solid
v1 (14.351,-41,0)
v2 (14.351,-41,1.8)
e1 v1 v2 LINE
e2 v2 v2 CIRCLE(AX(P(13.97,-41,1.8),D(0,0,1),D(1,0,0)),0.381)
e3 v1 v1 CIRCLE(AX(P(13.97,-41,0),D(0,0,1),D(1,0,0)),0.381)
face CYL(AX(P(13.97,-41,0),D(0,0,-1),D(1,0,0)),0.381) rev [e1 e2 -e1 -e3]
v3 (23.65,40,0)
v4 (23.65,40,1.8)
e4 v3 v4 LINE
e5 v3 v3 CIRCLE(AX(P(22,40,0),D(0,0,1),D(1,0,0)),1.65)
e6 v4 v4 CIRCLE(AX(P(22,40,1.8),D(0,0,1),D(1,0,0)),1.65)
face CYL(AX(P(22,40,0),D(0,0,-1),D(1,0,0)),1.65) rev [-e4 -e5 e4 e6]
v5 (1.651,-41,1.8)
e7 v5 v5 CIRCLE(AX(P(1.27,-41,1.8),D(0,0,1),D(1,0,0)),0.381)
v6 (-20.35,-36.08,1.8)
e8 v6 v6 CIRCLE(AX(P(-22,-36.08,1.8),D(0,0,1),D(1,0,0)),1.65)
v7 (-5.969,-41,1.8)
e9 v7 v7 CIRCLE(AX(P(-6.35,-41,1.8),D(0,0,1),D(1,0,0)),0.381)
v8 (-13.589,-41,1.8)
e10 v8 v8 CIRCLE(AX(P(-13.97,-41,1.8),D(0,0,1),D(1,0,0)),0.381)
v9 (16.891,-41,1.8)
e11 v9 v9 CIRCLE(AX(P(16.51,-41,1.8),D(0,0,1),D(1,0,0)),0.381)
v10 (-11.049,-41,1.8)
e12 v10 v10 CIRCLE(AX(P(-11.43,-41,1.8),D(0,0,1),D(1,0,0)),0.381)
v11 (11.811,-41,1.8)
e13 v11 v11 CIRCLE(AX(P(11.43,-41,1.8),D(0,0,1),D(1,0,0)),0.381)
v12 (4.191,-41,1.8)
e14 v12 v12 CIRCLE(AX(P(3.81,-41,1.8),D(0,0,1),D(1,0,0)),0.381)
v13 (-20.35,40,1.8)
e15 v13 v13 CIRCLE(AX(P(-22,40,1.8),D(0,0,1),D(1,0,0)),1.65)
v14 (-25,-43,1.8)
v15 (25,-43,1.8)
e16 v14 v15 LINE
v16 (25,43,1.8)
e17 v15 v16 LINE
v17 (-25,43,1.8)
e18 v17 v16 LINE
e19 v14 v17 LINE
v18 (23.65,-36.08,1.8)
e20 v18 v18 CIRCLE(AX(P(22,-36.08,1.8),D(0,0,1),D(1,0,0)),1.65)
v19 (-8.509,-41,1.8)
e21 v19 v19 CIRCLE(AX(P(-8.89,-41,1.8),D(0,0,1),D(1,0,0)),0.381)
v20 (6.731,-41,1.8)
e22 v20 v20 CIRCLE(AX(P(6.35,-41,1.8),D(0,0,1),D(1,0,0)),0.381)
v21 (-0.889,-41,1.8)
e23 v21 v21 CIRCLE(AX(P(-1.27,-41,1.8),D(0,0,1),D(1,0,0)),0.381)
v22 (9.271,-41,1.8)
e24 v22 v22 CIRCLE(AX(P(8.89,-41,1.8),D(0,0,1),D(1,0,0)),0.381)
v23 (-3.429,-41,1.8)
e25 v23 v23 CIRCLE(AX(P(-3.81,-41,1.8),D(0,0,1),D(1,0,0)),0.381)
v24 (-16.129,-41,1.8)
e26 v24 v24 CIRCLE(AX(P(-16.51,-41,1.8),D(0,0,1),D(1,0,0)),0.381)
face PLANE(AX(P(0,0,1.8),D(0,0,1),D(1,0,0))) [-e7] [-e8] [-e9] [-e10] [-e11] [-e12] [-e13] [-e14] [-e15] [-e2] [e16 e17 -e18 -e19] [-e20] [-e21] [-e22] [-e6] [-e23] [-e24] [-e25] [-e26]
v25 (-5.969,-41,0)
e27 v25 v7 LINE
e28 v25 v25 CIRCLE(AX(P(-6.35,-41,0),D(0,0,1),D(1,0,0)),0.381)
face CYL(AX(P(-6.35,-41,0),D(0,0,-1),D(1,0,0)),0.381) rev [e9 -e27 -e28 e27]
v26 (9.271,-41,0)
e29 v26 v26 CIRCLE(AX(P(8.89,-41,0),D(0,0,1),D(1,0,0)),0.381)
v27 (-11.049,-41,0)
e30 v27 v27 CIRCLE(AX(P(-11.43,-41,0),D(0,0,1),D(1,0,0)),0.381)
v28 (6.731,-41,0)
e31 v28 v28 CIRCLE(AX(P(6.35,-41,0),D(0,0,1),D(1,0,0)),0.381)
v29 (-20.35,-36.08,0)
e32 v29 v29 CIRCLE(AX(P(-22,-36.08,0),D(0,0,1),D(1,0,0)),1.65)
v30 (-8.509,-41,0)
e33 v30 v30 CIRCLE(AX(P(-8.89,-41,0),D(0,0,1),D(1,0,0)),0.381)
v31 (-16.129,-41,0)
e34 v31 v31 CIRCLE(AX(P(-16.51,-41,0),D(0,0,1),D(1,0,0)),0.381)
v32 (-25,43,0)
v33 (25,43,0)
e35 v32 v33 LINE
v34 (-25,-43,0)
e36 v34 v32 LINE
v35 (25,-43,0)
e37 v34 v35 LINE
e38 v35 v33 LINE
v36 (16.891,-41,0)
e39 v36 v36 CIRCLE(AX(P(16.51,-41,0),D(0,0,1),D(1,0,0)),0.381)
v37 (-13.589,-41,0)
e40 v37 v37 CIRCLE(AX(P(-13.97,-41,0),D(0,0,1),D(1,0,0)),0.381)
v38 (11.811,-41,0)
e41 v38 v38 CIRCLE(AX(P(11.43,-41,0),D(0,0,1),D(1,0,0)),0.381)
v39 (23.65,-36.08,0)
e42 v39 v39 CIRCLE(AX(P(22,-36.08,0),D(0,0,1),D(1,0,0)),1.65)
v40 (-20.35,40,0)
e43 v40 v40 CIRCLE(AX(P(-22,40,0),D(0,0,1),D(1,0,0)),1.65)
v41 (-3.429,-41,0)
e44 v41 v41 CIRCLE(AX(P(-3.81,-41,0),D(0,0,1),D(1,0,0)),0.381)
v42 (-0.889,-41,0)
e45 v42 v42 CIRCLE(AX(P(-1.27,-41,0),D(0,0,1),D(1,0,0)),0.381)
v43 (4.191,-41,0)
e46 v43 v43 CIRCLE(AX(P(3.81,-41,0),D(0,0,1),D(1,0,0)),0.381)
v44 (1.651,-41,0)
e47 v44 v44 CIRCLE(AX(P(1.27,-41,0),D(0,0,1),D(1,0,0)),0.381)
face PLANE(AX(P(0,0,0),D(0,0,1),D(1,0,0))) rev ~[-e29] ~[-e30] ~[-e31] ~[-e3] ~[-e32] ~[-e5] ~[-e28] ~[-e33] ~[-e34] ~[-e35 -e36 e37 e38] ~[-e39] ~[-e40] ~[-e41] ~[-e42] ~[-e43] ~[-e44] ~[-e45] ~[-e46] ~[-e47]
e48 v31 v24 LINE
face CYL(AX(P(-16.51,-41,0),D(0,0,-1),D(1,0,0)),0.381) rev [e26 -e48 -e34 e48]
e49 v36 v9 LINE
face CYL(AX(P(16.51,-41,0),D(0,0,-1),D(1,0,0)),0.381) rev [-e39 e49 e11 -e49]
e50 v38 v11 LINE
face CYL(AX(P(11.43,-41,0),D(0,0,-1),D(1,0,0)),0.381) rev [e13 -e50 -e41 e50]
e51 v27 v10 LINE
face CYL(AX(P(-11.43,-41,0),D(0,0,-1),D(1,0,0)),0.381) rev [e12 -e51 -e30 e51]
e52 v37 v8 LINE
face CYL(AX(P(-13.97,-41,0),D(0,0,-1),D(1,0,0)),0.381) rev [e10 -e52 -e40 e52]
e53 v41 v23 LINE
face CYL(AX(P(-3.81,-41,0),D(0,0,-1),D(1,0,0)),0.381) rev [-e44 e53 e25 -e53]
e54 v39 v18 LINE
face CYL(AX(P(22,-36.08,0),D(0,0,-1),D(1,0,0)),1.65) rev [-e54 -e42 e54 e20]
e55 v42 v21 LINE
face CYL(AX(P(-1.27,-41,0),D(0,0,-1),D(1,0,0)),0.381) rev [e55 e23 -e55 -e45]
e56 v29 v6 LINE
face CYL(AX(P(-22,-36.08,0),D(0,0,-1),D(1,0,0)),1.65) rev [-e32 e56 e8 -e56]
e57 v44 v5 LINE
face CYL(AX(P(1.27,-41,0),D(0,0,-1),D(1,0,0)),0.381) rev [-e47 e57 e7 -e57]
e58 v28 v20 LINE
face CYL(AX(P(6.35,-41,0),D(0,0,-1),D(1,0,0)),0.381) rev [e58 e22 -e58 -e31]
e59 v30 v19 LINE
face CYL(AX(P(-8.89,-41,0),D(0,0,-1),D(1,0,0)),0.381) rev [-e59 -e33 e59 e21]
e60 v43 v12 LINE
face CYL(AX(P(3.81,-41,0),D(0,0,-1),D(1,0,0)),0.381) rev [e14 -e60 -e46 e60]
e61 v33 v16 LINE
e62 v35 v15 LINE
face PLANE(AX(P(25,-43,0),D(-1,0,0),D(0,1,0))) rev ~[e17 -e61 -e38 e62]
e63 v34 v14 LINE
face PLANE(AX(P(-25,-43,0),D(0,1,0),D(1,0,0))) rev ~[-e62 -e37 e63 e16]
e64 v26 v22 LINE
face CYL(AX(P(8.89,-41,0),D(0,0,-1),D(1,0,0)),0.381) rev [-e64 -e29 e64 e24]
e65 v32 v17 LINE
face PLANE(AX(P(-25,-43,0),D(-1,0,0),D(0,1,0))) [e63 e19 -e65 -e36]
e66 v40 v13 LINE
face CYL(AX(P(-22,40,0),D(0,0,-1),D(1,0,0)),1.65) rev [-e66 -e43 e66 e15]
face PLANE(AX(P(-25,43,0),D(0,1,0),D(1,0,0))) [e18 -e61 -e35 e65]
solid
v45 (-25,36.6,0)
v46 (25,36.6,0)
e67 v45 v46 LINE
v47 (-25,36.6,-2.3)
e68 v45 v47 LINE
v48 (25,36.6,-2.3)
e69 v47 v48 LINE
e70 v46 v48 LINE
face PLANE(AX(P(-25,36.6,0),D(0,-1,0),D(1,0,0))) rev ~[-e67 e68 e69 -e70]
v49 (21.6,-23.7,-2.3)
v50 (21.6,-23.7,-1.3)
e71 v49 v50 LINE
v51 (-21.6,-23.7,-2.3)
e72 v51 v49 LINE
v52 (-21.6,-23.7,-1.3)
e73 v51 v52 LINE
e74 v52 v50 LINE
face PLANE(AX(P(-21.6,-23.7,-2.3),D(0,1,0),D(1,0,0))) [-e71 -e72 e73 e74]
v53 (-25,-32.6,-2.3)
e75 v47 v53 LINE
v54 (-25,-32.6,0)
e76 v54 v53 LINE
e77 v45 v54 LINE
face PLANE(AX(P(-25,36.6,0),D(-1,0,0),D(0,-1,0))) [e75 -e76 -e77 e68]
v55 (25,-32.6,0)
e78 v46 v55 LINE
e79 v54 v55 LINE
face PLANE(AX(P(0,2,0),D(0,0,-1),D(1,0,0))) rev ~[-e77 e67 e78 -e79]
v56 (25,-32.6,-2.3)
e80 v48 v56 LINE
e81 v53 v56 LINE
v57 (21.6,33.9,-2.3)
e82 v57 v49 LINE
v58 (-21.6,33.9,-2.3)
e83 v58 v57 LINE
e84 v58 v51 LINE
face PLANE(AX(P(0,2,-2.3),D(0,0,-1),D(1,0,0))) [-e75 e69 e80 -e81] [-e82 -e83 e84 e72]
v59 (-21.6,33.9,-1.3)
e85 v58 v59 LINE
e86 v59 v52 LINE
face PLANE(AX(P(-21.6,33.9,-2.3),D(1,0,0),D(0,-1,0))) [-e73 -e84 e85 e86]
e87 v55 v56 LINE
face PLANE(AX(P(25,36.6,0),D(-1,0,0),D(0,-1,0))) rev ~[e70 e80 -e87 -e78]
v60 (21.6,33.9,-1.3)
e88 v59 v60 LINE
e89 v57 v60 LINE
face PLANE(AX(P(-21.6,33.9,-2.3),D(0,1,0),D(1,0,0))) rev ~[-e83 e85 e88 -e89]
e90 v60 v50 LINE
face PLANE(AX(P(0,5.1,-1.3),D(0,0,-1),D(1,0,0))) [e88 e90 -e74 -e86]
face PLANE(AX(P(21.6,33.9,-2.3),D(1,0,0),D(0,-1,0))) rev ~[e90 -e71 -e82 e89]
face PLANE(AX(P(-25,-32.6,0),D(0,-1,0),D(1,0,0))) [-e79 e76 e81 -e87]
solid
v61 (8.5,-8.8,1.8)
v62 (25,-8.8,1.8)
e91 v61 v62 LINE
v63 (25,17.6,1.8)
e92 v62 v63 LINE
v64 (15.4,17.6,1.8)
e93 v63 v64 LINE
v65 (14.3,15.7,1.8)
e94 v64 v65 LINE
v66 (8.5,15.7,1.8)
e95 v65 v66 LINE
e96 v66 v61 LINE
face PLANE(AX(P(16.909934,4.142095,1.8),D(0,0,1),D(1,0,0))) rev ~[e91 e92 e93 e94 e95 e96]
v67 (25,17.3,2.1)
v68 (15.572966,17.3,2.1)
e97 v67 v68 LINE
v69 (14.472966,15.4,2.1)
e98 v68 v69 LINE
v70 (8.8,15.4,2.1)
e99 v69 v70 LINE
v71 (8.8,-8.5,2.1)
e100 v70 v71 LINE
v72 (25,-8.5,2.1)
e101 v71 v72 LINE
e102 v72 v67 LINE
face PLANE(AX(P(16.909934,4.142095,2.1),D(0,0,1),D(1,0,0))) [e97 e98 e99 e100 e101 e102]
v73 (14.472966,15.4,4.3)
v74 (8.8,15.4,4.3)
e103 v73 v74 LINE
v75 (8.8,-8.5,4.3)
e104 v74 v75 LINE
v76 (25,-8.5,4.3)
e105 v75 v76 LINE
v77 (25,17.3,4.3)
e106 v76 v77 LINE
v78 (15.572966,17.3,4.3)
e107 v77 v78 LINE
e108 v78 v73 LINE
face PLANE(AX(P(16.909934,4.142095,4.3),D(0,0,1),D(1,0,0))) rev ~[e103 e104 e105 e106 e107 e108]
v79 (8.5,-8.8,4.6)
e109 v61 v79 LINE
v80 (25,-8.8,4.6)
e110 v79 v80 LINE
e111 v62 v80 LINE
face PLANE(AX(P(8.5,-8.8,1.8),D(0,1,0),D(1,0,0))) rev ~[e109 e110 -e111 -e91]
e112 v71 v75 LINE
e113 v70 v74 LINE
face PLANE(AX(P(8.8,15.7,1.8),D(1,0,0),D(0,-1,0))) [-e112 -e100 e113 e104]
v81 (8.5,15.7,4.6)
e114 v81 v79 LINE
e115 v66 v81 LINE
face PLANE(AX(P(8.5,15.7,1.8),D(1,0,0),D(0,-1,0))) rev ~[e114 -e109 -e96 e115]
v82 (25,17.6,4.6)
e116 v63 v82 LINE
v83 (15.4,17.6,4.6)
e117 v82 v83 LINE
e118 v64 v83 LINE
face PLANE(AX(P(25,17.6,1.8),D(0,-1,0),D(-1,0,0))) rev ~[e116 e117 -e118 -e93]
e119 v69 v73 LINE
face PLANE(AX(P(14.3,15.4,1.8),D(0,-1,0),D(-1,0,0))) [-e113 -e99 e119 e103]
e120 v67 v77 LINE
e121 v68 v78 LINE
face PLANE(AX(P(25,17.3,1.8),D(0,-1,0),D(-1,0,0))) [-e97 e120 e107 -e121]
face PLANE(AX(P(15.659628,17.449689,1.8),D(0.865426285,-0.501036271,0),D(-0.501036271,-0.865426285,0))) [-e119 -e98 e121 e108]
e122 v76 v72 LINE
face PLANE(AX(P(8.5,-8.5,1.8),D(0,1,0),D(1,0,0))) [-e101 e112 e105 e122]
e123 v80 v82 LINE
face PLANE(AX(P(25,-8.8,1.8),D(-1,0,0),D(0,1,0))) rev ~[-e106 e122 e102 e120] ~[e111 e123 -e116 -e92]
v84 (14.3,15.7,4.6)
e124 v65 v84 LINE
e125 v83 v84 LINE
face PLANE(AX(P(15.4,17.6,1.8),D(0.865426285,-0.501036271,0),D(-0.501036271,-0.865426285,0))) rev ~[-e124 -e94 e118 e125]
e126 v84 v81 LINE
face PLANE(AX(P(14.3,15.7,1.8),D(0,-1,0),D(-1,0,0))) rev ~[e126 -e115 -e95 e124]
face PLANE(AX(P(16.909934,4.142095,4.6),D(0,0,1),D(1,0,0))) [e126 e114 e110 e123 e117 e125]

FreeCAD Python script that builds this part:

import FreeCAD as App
import Part
import Sketcher
from FreeCAD import Vector
Q = App.Units.Quantity


def faces_at(feature, points):
    """Names of the faces that lie closest to the given points."""
    faces = feature.Shape.Faces
    near = lambda p: min(range(len(faces)), key=lambda i: faces[i].distToShape(Part.Vertex(*p))[0])
    return sorted({f"Face{near(p) + 1}" for p in points})


def add_polygon(sketch, points):
    """Adds a closed chain of lines whose ends are joined by coincident constraints."""
    first, n = sketch.GeometryCount, len(points)
    for a, b in zip(points, points[1:] + points[:1]):
        sketch.addGeometry(Part.LineSegment(App.Vector(*a, 0), App.Vector(*b, 0)), False)
    for i in range(n):
        sketch.addConstraint(Sketcher.Constraint("Coincident", first + i, 2, first + (i + 1) % n, 1))

doc = App.newDocument("Part")
body = doc.addObject("PartDesign::Body", "Body")

# Sketch on XY plane
sketch1 = body.newObject("Sketcher::SketchObject", "Sketch")
sketch1.AttachmentSupport = (doc.getObject("XY_Plane"), [""])
sketch1.MapMode = "FlatFace"
add_polygon(sketch1, [(-25, 43), (-25, -43), (25, -43), (25, 43)])  # lines 0-3
sketch1.addGeometry(Part.Circle(Vector(-22, -36.08, 0), Vector(0, 0, 1), 1.65), False)  # 4
sketch1.addGeometry(Part.Circle(Vector(-16.51, -41, 0), Vector(0, 0, 1), 0.38), False)  # 5
sketch1.addGeometry(Part.Circle(Vector(-13.97, -41, 0), Vector(0, 0, 1), 0.38), False)  # 6
sketch1.addGeometry(Part.Circle(Vector(-11.43, -41, 0), Vector(0, 0, 1), 0.38), False)  # 7
sketch1.addGeometry(Part.Circle(Vector(-8.89, -41, 0), Vector(0, 0, 1), 0.38), False)  # 8
sketch1.addGeometry(Part.Circle(Vector(-6.35, -41, 0), Vector(0, 0, 1), 0.38), False)  # 9
sketch1.addGeometry(Part.Circle(Vector(-3.81, -41, 0), Vector(0, 0, 1), 0.38), False)  # 10
sketch1.addGeometry(Part.Circle(Vector(-1.27, -41, 0), Vector(0, 0, 1), 0.38), False)  # 11
sketch1.addGeometry(Part.Circle(Vector(1.27, -41, 0), Vector(0, 0, 1), 0.38), False)  # 12
sketch1.addGeometry(Part.Circle(Vector(3.81, -41, 0), Vector(0, 0, 1), 0.38), False)  # 13
sketch1.addGeometry(Part.Circle(Vector(6.35, -41, 0), Vector(0, 0, 1), 0.38), False)  # 14
sketch1.addGeometry(Part.Circle(Vector(8.89, -41, 0), Vector(0, 0, 1), 0.38), False)  # 15
sketch1.addGeometry(Part.Circle(Vector(11.43, -41, 0), Vector(0, 0, 1), 0.38), False)  # 16
sketch1.addGeometry(Part.Circle(Vector(13.97, -41, 0), Vector(0, 0, 1), 0.38), False)  # 17
sketch1.addGeometry(Part.Circle(Vector(16.51, -41, 0), Vector(0, 0, 1), 0.38), False)  # 18
sketch1.addGeometry(Part.Circle(Vector(22, -36.08, 0), Vector(0, 0, 1), 1.65), False)  # 19
sketch1.addGeometry(Part.Circle(Vector(-22, 40, 0), Vector(0, 0, 1), 1.65), False)  # 20
sketch1.addGeometry(Part.Circle(Vector(22, 40, 0), Vector(0, 0, 1), 1.65), False)  # 21
sketch1.addConstraint([
    Sketcher.Constraint("Vertical", 0),
    Sketcher.Constraint("Horizontal", 1),
    Sketcher.Constraint("Vertical", 2),
    Sketcher.Constraint("Horizontal", 3),
    Sketcher.Constraint("Equal", 5, 6),
    Sketcher.Constraint("Equal", 6, 7),
    Sketcher.Constraint("Equal", 7, 8),
    Sketcher.Constraint("Equal", 8, 9),
    Sketcher.Constraint("Equal", 9, 10),
    Sketcher.Constraint("Equal", 10, 11),
    Sketcher.Constraint("Equal", 11, 12),
    Sketcher.Constraint("Equal", 12, 13),
    Sketcher.Constraint("Equal", 13, 14),
    Sketcher.Constraint("Equal", 14, 15),
    Sketcher.Constraint("Equal", 15, 16),
    Sketcher.Constraint("Equal", 16, 17),
    Sketcher.Constraint("Equal", 17, 18),
    Sketcher.Constraint("Equal", 4, 19),
    Sketcher.Constraint("Equal", 19, 20),
    Sketcher.Constraint("Equal", 20, 21),
    Sketcher.Constraint("Symmetric", 0, 2, 2, 2, -1, 1),
    Sketcher.Constraint("Symmetric", 11, 3, 12, 3, -2),
    Sketcher.Constraint("Symmetric", 10, 3, 13, 3, -2),
    Sketcher.Constraint("Symmetric", 9, 3, 14, 3, -2),
    Sketcher.Constraint("Symmetric", 8, 3, 15, 3, -2),
    Sketcher.Constraint("Symmetric", 7, 3, 16, 3, -2),
    Sketcher.Constraint("Symmetric", 6, 3, 17, 3, -2),
    Sketcher.Constraint("Symmetric", 5, 3, 18, 3, -2),
    Sketcher.Constraint("Symmetric", 4, 3, 19, 3, -2),
    Sketcher.Constraint("Symmetric", 20, 3, 21, 3, -2),
    Sketcher.Constraint("Horizontal", 5, 3, 6, 3),
    Sketcher.Constraint("Horizontal", 6, 3, 7, 3),
    Sketcher.Constraint("Horizontal", 7, 3, 8, 3),
    Sketcher.Constraint("Horizontal", 8, 3, 9, 3),
    Sketcher.Constraint("Horizontal", 9, 3, 10, 3),
    Sketcher.Constraint("Horizontal", 10, 3, 11, 3),
    Sketcher.Constraint("Vertical", 4, 3, 20, 3),
    Sketcher.Constraint("Diameter", 4, Q("3.3 mm")),
    Sketcher.Constraint("DistanceX", 1, 1, 1, 2, Q("50 mm")),
    Sketcher.Constraint("DistanceY", 0, 2, 0, 1, Q("86 mm")),
    Sketcher.Constraint("Diameter", 5, Q("0.762 mm")),
    Sketcher.Constraint("DistanceX", 4, 3, -1, 1, Q("22 mm")),
    Sketcher.Constraint("DistanceY", 5, 3, -1, 1, Q("41 mm")),
    Sketcher.Constraint("DistanceY", -1, 1, 20, 3, Q("40 mm")),
    Sketcher.Constraint("DistanceX", 5, 3, 10, 3, Q("12.7 mm")),
    Sketcher.Constraint("DistanceX", 6, 3, 11, 3, Q("12.7 mm")),
    Sketcher.Constraint("DistanceX", 7, 3, 12, 3, Q("12.7 mm")),
    Sketcher.Constraint("DistanceX", 8, 3, 13, 3, Q("12.7 mm")),
    Sketcher.Constraint("DistanceX", 9, 3, 14, 3, Q("12.7 mm")),
    Sketcher.Constraint("DistanceY", 4, 3, -1, 1, Q("36.08 mm")),
    Sketcher.Constraint("DistanceX", 5, 3, -1, 1, Q("16.51 mm")),
    Sketcher.Constraint("DistanceX", 6, 3, -1, 1, Q("13.97 mm")),
])
pad1 = body.newObject("PartDesign::Pad", "Pad")
pad1.Profile = sketch1
pad1.Length = 1.8
body2 = doc.addObject("PartDesign::Body", "Body001")

# Sketch on XY plane
sketch2 = body2.newObject("Sketcher::SketchObject", "Sketch001")
sketch2.AttachmentSupport = (doc.getObject("XY_Plane001"), [""])
sketch2.MapMode = "FlatFace"
add_polygon(sketch2, [(-25, -33), (-25, 37), (25, 37), (25, -33)])  # lines 0-3
sketch2.addConstraint([
    Sketcher.Constraint("Vertical", 0),
    Sketcher.Constraint("Horizontal", 1),
    Sketcher.Constraint("Vertical", 2),
    Sketcher.Constraint("Horizontal", 3),
    Sketcher.Constraint("DistanceX", 1, 1, 1, 2, Q("50 mm")),
    Sketcher.Constraint("DistanceY", 0, 1, 0, 2, Q("69.2 mm")),
    Sketcher.Constraint("DistanceX", 0, 2, -1, 1, Q("25 mm")),
    Sketcher.Constraint("DistanceY", -1, 1, 0, 2, Q("36.6 mm")),
])
pad2 = body2.newObject("PartDesign::Pad", "Pad001")
pad2.Profile = sketch2
pad2.Length = 2.3
pad2.Reversed = True

# Sketch on XY plane
sketch3 = body2.newObject("Sketcher::SketchObject", "Sketch002")
sketch3.AttachmentSupport = (doc.getObject("XY_Plane001"), [""])
sketch3.MapMode = "FlatFace"
sketch3.AttachmentOffset = App.Placement(Vector(0, 0, -2.3), App.Rotation())
add_polygon(sketch3, [(-22, -24), (-22, 34), (22, 34), (22, -24)])  # lines 0-3
sketch3.addConstraint([
    Sketcher.Constraint("Vertical", 0),
    Sketcher.Constraint("Horizontal", 1),
    Sketcher.Constraint("Vertical", 2),
    Sketcher.Constraint("Horizontal", 3),
    Sketcher.Constraint("DistanceX", 1, 1, 1, 2, Q("43.2 mm")),
    Sketcher.Constraint("DistanceY", 0, 1, 0, 2, Q("57.6 mm")),
    Sketcher.Constraint("DistanceX", 0, 2, -1, 1, Q("21.6 mm")),
    Sketcher.Constraint("DistanceY", -1, 1, 0, 2, Q("33.9 mm")),
])
pocket1 = body2.newObject("PartDesign::Pocket", "Pocket")
pocket1.Profile = sketch3
pocket1.Length = 1
pocket1.Reversed = True
body3 = doc.addObject("PartDesign::Body", "Body002")

# Sketch on XY plane
sketch4 = body3.newObject("Sketcher::SketchObject", "Sketch003")
sketch4.AttachmentSupport = (doc.getObject("XY_Plane002"), [""])
sketch4.MapMode = "FlatFace"
sketch4.AttachmentOffset = App.Placement(Vector(0, 0, 1.8), App.Rotation())
add_polygon(sketch4, [(14.3, 15.7), (8.5, 15.7), (8.5, -8.8), (25, -8.8), (25, 17.6), (15.4, 17.6)])  # lines 0-5
sketch4.addConstraint([
    Sketcher.Constraint("Horizontal", 0),
    Sketcher.Constraint("Vertical", 1),
    Sketcher.Constraint("Horizontal", 2),
    Sketcher.Constraint("Vertical", 3),
    Sketcher.Constraint("Horizontal", 4),
    Sketcher.Constraint("DistanceX", 0, 2, 0, 1, Q("5.8 mm")),
    Sketcher.Constraint("DistanceX", 2, 1, 2, 2, Q("16.5 mm")),
    Sketcher.Constraint("DistanceX", 4, 2, 4, 1, Q("9.6 mm")),
    Sketcher.Constraint("DistanceY", 1, 2, 1, 1, Q("24.5 mm")),
    Sketcher.Constraint("DistanceY", 3, 1, 3, 2, Q("26.4 mm")),
    Sketcher.Constraint("DistanceX", -1, 1, 2, 2, Q("25 mm")),
    Sketcher.Constraint("DistanceY", -1, 1, 0, 2, Q("15.7 mm")),
])
pad3 = body3.newObject("PartDesign::Pad", "Pad002")
pad3.Profile = sketch4
pad3.Length = 2.8
doc.recompute()

thickness = body3.newObject("PartDesign::Thickness", "Thickness")
thickness.Base = (pad3, faces_at(pad3, [(25, 4.4, 3.2)]))
thickness.Value = 0.3
thickness.Reversed = True
thickness.Join = "Intersection"

doc.recompute()
